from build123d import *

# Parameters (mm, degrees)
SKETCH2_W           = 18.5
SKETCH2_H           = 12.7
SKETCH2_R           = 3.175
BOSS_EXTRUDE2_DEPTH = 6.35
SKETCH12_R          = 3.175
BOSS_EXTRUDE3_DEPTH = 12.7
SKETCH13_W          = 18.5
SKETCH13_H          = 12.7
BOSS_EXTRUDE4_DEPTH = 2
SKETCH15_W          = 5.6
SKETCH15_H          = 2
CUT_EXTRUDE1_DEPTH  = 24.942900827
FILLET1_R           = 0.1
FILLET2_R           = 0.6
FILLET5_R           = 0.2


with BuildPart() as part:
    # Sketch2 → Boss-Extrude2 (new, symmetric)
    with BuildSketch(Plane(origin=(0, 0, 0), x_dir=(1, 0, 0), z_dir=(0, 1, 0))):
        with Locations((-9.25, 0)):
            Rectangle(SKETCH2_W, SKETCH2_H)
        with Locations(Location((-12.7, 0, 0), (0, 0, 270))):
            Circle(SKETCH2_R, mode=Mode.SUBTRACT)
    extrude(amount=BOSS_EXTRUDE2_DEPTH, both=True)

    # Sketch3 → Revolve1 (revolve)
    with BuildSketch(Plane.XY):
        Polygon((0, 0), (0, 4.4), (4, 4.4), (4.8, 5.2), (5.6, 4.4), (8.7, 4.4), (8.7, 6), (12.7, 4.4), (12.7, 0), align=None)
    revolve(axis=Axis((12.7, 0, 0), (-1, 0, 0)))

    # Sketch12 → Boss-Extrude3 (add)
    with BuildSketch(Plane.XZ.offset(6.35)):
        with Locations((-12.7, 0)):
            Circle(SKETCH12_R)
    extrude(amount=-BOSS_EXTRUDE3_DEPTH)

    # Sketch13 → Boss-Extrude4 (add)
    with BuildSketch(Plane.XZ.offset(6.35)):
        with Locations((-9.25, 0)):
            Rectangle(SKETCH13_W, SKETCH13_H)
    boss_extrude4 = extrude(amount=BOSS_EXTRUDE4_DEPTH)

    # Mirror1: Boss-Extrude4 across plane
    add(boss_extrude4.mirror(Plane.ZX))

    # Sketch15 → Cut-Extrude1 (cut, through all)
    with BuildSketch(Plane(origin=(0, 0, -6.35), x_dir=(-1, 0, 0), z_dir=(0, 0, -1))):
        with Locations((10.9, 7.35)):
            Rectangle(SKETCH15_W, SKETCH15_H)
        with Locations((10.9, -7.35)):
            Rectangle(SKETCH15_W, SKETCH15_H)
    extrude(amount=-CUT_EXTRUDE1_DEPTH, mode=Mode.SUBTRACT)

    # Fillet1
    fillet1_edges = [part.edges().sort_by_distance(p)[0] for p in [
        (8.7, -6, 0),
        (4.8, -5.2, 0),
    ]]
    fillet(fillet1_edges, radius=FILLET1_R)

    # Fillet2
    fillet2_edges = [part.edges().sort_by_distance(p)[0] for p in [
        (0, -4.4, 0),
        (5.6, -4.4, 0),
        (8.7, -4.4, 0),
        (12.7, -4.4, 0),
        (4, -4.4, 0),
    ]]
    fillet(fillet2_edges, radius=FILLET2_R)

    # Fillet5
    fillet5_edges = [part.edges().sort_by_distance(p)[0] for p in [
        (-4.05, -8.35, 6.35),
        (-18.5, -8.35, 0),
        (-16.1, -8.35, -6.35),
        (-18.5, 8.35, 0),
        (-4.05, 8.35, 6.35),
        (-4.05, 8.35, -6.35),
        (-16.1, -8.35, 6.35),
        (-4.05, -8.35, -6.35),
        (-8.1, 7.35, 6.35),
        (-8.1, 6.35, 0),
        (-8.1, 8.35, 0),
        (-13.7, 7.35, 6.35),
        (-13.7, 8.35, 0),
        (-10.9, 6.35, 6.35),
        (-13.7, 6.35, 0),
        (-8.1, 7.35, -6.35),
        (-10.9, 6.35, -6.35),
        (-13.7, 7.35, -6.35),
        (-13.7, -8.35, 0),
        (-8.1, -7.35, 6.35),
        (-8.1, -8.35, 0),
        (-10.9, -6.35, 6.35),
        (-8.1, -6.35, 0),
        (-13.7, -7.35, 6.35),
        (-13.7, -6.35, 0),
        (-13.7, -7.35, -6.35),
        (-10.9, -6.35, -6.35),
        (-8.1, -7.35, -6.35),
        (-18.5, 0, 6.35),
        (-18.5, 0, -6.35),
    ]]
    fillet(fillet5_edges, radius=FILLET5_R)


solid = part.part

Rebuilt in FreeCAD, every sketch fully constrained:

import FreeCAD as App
import Part
import Sketcher
from FreeCAD import Vector
Q = App.Units.Quantity


def edges_at(feature, points):
    """Names of the edges that pass closest to the given points."""
    edges = feature.Shape.Edges
    near = lambda p: min(range(len(edges)), key=lambda i: edges[i].distToShape(Part.Vertex(*p))[0])
    return sorted({f"Edge{near(p) + 1}" for p in points})


def add_polygon(sketch, points):
    """Adds a closed chain of lines whose ends are joined by coincident constraints."""
    first, n = sketch.GeometryCount, len(points)
    for a, b in zip(points, points[1:] + points[:1]):
        sketch.addGeometry(Part.LineSegment(App.Vector(*a, 0), App.Vector(*b, 0)), False)
    for i in range(n):
        sketch.addConstraint(Sketcher.Constraint("Coincident", first + i, 2, first + (i + 1) % n, 1))

doc = App.newDocument("Part")
body = doc.addObject("PartDesign::Body", "Body")

sketch1 = doc.addObject("Sketcher::SketchObject", "Sketch")
body.addObject(sketch1)
sketch1.AttachmentSupport = (doc.XZ_Plane, [""])
sketch1.MapMode = "FlatFace"
add_polygon(sketch1, [(-18.5, -6.3), (-18.5, 6.3), (0, 6.3), (0, -6.3)])
sketch1.addGeometry(Part.Circle(Vector(-12.7, 0, 0), Vector(0, 0, 1), 3.2), False)
sketch1.addConstraint([
    Sketcher.Constraint("Vertical", 0),
    Sketcher.Constraint("Horizontal", 1),
    Sketcher.Constraint("Vertical", 2),
    Sketcher.Constraint("Horizontal", 3),
    Sketcher.Constraint("Symmetric", 1, 2, 2, 2, -1, 1),
    Sketcher.Constraint("PointOnObject", 4, 3, -1),
    Sketcher.Constraint("Diameter", 4, Q("6.35 mm")),
    Sketcher.Constraint("DistanceX", 1, 1, 1, 2, Q("18.5 mm")),
    Sketcher.Constraint("DistanceY", 0, 1, 0, 2, Q("12.7 mm")),
    Sketcher.Constraint("DistanceX", 4, 3, -1, 1, Q("12.7 mm")),
])
pad1 = doc.addObject("PartDesign::Pad", "Pad")
body.addObject(pad1)
pad1.Profile = sketch1
pad1.Length = 12.7
pad1.Midplane = True

sketch2 = doc.addObject("Sketcher::SketchObject", "Sketch001")
body.addObject(sketch2)
sketch2.AttachmentSupport = (doc.XY_Plane, [""])
sketch2.MapMode = "FlatFace"
add_polygon(sketch2, [(0, 4.4), (0, 0), (12.7, 0), (12.7, 4.4), (8.7, 6), (8.7, 4.4), (5.6, 4.4), (4.8, 5.2), (4, 4.4)])
sketch2.addConstraint([
    Sketcher.Constraint("Vertical", 0),
    Sketcher.Constraint("Horizontal", 1),
    Sketcher.Constraint("Vertical", 2),
    Sketcher.Constraint("Vertical", 4),
    Sketcher.Constraint("Horizontal", 5),
    Sketcher.Constraint("Horizontal", 8),
    Sketcher.Constraint("Coincident", 0, 2, -1, 1),
    Sketcher.Constraint("Perpendicular", 6, 7),
    Sketcher.Constraint("Horizontal", 2, 2, 4, 2),
    Sketcher.Constraint("Horizontal", 5, 2, 7, 2),
    Sketcher.Constraint("Equal", 6, 7),
    Sketcher.Constraint("DistanceX", 8, 2, 8, 1, Q("4 mm")),
    Sketcher.Constraint("DistanceX", 1, 1, 1, 2, Q("12.7 mm")),
    Sketcher.Constraint("DistanceX", 5, 2, 5, 1, Q("3.1 mm")),
    Sketcher.Constraint("DistanceY", 0, 2, 0, 1, Q("4.4 mm")),
    Sketcher.Constraint("DistanceY", 4, 2, 4, 1, Q("1.6 mm")),
    Sketcher.Constraint("DistanceX", 3, 2, 2, 2, Q("4 mm")),
])
revolution = doc.addObject("PartDesign::Revolution", "Revolution")
body.addObject(revolution)
revolution.Profile = sketch2
revolution.ReferenceAxis = (sketch2, ["H_Axis"])
revolution.Angle = 360

sketch3 = doc.addObject("Sketcher::SketchObject", "Sketch002")
body.addObject(sketch3)
sketch3.AttachmentSupport = (doc.XZ_Plane, [""])
sketch3.MapMode = "FlatFace"
sketch3.AttachmentOffset = App.Placement(Vector(0, 0, 6.35), App.Rotation())
sketch3.addGeometry(Part.Circle(Vector(-12.7, 0, 0), Vector(0, 0, 1), 3.2), False)
sketch3.addConstraint([
    Sketcher.Constraint("PointOnObject", 0, 3, -1),
    Sketcher.Constraint("Diameter", 0, Q("6.35 mm")),
    Sketcher.Constraint("DistanceX", 0, 3, -1, 1, Q("12.7 mm")),
])
pad2 = doc.addObject("PartDesign::Pad", "Pad001")
body.addObject(pad2)
pad2.Profile = sketch3
pad2.Length = 12.7
pad2.Reversed = True

sketch4 = doc.addObject("Sketcher::SketchObject", "Sketch003")
body.addObject(sketch4)
sketch4.AttachmentSupport = (doc.XZ_Plane, [""])
sketch4.MapMode = "FlatFace"
sketch4.AttachmentOffset = App.Placement(Vector(0, 0, 6.35), App.Rotation())
add_polygon(sketch4, [(-18, 6), (-18, -6), (0, -6), (0, 6)])
sketch4.addConstraint([
    Sketcher.Constraint("Vertical", 0),
    Sketcher.Constraint("Horizontal", 1),
    Sketcher.Constraint("Vertical", 2),
    Sketcher.Constraint("Horizontal", 3),
    Sketcher.Constraint("Symmetric", 1, 2, 2, 2, -1, 1),
    Sketcher.Constraint("DistanceX", 1, 1, 1, 2, Q("18.5 mm")),
    Sketcher.Constraint("DistanceY", 0, 2, 0, 1, Q("12.7 mm")),
])
pad3 = doc.addObject("PartDesign::Pad", "Pad002")
body.addObject(pad3)
pad3.Profile = sketch4
pad3.Length = 2
doc.recompute()

mirrored = doc.addObject("PartDesign::Mirrored", "Mirrored")
body.addObject(mirrored)
mirrored.Originals = [pad3]
mirrored.MirrorPlane = (doc.XZ_Plane, [""])
body.Tip = mirrored

sketch5 = doc.addObject("Sketcher::SketchObject", "Sketch004")
body.addObject(sketch5)
sketch5.AttachmentSupport = (doc.XY_Plane, [""])
sketch5.MapMode = "FlatFace"
sketch5.AttachmentOffset = App.Placement(Vector(0, 0, -6.35), App.Rotation())
add_polygon(sketch5, [(-8.1, 8.3), (-8.1, 6.3), (-13.7, 6.3), (-13.7, 8.3)])
add_polygon(sketch5, [(-8.1, -6.3), (-8.1, -8.3), (-13.7, -8.3), (-13.7, -6.3)])
sketch5.addConstraint([
    Sketcher.Constraint("Vertical", 0),
    Sketcher.Constraint("Horizontal", 1),
    Sketcher.Constraint("Vertical", 2),
    Sketcher.Constraint("Horizontal", 3),
    Sketcher.Constraint("Vertical", 4),
    Sketcher.Constraint("Horizontal", 5),
    Sketcher.Constraint("Vertical", 6),
    Sketcher.Constraint("Horizontal", 7),
    Sketcher.Constraint("Symmetric", 3, 2, 4, 2, -1),
    Sketcher.Constraint("Symmetric", 1, 2, 6, 2, -1),
    Sketcher.Constraint("DistanceY", 0, 2, 0, 1, Q("2 mm")),
    Sketcher.Constraint("DistanceX", 1, 2, 1, 1, Q("5.6 mm")),
    Sketcher.Constraint("DistanceX", 0, 2, -1, 1, Q("8.1 mm")),
    Sketcher.Constraint("DistanceY", 4, 2, 0, 2, Q("14.7 mm")),
])
pocket1 = doc.addObject("PartDesign::Pocket", "Pocket")
body.addObject(pocket1)
pocket1.Profile = sketch5
pocket1.Type = "ThroughAll"
pocket1.Reversed = True
doc.recompute()

fillet = doc.addObject("PartDesign::Fillet", "Fillet")
body.addObject(fillet)
fillet.Base = (pocket1, edges_at(pocket1, [(8.7, -6, 0), (4.8, -5.2, 0)]))
fillet.Radius = 0.1
doc.recompute()

fillet2 = doc.addObject("PartDesign::Fillet", "Fillet001")
body.addObject(fillet2)
fillet2.Base = (fillet, edges_at(fillet, [
    (0, -4.4, 0),
    (5.6, -4.4, 0),
    (8.7, -4.4, 0),
    (12.7, -4.4, 0),
    (4, -4.4, 0),
]))
fillet2.Radius = 0.6
doc.recompute()

fillet3 = doc.addObject("PartDesign::Fillet", "Fillet002")
body.addObject(fillet3)
fillet3.Base = (fillet2, edges_at(fillet2, [
    (-4.05, -8.35, 6.35),
    (-18.5, -8.35, 0),
    (-16.1, -8.35, -6.35),
    (-18.5, 8.35, 0),
    (-4.05, 8.35, 6.35),
    (-4.05, 8.35, -6.35),
    (-16.1, -8.35, 6.35),
    (-4.05, -8.35, -6.35),
    (-8.1, 7.35, 6.35),
    (-8.1, 6.35, 0),
    (-8.1, 8.35, 0),
    (-13.7, 7.35, 6.35),
    (-13.7, 8.35, 0),
    (-10.9, 6.35, 6.35),
    (-13.7, 6.35, 0),
    (-8.1, 7.35, -6.35),
    (-10.9, 6.35, -6.35),
    (-13.7, 7.35, -6.35),
    (-13.7, -8.35, 0),
    (-8.1, -7.35, 6.35),
    (-8.1, -8.35, 0),
    (-10.9, -6.35, 6.35),
    (-8.1, -6.35, 0),
    (-13.7, -7.35, 6.35),
    (-13.7, -6.35, 0),
    (-13.7, -7.35, -6.35),
    (-10.9, -6.35, -6.35),
    (-8.1, -7.35, -6.35),
    (-18.5, 0, 6.35),
    (-18.5, 0, -6.35),
]))
fillet3.Radius = 0.2

doc.recompute()
